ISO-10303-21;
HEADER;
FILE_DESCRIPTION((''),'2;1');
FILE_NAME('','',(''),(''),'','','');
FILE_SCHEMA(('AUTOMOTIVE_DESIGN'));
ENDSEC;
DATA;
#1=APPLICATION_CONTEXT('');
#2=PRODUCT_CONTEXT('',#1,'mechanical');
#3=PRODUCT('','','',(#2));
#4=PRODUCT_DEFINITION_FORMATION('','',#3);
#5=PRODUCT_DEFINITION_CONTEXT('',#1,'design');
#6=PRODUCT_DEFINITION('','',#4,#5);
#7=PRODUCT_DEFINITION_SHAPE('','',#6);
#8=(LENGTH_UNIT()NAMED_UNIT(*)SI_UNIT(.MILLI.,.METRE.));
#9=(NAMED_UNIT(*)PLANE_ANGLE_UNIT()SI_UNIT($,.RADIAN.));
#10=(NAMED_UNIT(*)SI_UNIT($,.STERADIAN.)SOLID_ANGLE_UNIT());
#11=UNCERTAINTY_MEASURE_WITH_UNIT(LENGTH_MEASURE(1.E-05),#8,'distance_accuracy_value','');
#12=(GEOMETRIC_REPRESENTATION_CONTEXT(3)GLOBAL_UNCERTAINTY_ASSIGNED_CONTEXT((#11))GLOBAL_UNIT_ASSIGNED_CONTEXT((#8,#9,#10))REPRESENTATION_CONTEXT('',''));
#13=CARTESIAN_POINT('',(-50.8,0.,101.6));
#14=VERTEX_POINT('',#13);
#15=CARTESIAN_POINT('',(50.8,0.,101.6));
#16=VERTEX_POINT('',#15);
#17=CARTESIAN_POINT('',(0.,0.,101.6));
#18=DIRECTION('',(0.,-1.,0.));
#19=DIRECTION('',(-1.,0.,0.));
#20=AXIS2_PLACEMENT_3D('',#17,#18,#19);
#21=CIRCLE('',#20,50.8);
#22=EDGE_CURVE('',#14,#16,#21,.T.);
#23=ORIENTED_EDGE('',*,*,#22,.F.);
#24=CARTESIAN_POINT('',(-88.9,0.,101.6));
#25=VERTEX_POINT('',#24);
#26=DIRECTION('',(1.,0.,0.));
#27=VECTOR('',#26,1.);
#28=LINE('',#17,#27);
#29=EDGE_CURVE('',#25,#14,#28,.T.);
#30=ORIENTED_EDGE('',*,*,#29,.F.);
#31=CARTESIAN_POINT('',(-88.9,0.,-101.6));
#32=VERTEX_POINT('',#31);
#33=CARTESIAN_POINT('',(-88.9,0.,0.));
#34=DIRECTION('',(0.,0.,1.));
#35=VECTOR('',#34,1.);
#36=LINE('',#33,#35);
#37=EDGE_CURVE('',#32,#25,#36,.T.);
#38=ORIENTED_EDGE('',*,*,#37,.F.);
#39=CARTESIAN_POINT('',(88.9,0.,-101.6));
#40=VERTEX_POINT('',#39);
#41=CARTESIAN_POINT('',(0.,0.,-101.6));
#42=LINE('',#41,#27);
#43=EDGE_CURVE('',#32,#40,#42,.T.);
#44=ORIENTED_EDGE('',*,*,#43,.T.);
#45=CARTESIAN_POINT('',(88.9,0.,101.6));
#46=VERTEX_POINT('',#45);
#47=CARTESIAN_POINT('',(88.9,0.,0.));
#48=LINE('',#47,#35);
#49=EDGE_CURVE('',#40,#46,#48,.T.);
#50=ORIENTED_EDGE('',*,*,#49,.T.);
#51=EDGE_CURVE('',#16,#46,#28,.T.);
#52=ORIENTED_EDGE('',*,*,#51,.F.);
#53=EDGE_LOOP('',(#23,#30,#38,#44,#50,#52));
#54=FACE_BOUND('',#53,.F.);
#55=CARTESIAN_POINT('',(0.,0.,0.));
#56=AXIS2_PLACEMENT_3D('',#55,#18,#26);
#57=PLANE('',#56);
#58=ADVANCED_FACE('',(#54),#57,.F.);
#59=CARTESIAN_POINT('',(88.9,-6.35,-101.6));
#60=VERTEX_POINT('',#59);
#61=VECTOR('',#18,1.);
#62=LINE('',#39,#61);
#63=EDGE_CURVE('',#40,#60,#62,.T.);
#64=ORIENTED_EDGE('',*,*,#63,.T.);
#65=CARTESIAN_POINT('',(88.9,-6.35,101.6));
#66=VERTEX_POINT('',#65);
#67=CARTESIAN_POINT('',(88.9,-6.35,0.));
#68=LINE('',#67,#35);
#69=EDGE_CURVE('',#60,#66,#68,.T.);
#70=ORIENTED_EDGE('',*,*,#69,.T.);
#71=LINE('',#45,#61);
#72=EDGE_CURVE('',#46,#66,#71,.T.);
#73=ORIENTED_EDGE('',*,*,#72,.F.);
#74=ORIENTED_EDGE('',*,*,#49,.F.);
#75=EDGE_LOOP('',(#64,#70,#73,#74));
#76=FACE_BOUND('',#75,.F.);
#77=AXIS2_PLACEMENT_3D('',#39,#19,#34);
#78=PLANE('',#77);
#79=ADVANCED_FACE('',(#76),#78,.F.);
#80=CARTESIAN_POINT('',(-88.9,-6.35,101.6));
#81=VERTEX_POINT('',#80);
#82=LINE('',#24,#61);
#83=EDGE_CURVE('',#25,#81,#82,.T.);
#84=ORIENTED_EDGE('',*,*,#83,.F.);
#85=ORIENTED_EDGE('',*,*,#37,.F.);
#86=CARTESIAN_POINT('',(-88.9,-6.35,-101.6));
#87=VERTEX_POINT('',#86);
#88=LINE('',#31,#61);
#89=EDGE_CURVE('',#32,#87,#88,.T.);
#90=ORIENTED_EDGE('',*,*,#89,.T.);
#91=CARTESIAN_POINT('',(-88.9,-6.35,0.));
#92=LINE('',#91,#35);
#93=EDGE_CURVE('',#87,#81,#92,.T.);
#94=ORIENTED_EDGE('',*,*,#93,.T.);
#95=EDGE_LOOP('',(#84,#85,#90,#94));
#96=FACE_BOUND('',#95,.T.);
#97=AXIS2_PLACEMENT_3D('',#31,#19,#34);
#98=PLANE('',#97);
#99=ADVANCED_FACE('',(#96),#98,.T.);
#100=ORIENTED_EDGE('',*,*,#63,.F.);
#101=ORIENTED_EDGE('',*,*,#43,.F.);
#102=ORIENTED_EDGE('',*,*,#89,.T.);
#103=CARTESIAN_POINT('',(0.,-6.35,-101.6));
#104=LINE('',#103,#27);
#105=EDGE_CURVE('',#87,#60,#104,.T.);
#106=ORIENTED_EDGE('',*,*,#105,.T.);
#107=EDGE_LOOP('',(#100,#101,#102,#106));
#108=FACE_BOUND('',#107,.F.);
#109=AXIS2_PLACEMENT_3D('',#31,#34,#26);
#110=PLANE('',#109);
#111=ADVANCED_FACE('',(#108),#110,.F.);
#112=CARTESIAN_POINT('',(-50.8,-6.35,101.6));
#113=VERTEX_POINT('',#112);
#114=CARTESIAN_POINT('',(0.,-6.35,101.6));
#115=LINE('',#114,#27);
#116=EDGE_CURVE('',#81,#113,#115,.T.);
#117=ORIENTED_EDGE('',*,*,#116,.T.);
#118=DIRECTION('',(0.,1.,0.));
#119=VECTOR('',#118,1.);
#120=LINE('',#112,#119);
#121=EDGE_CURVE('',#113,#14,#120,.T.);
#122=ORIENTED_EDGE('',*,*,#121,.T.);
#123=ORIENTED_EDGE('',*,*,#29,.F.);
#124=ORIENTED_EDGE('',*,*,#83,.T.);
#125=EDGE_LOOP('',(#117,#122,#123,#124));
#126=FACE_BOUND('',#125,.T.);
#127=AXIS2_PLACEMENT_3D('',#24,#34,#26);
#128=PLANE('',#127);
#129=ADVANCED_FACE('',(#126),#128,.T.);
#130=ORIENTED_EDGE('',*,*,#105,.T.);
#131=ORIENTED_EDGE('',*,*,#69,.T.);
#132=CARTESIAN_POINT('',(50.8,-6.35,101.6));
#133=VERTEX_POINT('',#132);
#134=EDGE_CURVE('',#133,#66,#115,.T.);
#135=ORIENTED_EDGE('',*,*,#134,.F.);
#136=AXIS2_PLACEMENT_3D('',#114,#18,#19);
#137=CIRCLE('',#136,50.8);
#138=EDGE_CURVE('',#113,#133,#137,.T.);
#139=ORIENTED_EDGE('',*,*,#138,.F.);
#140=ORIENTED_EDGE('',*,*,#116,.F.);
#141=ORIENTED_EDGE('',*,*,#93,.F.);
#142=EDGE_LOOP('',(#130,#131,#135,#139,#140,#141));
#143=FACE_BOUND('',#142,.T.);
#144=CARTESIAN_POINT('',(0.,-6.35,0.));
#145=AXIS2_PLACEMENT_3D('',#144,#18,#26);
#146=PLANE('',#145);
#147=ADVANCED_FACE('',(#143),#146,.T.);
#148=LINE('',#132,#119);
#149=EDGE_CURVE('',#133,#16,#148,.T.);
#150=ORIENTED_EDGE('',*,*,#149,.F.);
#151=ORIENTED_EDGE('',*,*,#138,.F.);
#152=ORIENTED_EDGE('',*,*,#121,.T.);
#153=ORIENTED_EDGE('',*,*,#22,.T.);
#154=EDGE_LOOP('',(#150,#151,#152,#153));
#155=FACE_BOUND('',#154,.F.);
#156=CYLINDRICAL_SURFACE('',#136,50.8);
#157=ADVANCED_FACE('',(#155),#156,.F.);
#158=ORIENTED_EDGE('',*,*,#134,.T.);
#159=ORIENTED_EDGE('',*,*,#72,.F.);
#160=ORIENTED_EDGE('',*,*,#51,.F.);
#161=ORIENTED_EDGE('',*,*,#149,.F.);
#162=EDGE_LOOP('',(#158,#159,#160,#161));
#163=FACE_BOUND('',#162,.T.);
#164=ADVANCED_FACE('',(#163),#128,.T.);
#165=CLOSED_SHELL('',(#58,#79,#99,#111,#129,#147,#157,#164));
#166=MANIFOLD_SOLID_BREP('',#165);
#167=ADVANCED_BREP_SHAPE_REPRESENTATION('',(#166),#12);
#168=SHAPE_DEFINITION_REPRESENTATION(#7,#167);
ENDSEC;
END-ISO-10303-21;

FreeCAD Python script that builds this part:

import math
import FreeCAD as App
import Part
import Sketcher

V = App.Vector
Q = App.Units.Quantity


def add_polygon(sketch, points):
    """Adds a closed chain of lines whose ends are joined by coincident constraints."""
    first, n = sketch.GeometryCount, len(points)
    for a, b in zip(points, points[1:] + points[:1]):
        sketch.addGeometry(Part.LineSegment(App.Vector(*a, 0), App.Vector(*b, 0)), False)
    for i in range(n):
        sketch.addConstraint(Sketcher.Constraint("Coincident", first + i, 2, first + (i + 1) % n, 1))

doc = App.newDocument("Part")
body = doc.addObject("PartDesign::Body", "Body")

# Sketch on XZ plane
sketch1 = doc.addObject("Sketcher::SketchObject", "Sketch")
body.addObject(sketch1)
sketch1.AttachmentSupport = (doc.XZ_Plane, [""])
sketch1.MapMode = "FlatFace"
add_polygon(sketch1, [(-89, 102), (-89, -102), (89, -102), (89, 102)])  # lines 0-3
sketch1.addConstraint([
    Sketcher.Constraint("Vertical", 0),
    Sketcher.Constraint("Horizontal", 1),
    Sketcher.Constraint("Vertical", 2),
    Sketcher.Constraint("Horizontal", 3),
    Sketcher.Constraint("Symmetric", 0, 2, 2, 2, -1, 1),
    Sketcher.Constraint("DistanceX", 1, 1, 1, 2, Q("7 in")),
    Sketcher.Constraint("DistanceY", 0, 2, 0, 1, Q("8 in")),
])
pad1 = doc.addObject("PartDesign::Pad", "Pad")
body.addObject(pad1)
pad1.Profile = sketch1
pad1.Length = Q("0.25 in")

# Sketch on XZ plane
sketch2 = doc.addObject("Sketcher::SketchObject", "Sketch001")
body.addObject(sketch2)
sketch2.AttachmentSupport = (doc.XZ_Plane, [""])
sketch2.MapMode = "FlatFace"
sketch2.AttachmentOffset = App.Placement(V(0, 0, 0.25 * 25.4), App.Rotation())
sketch2.addGeometry([
    Part.LineSegment(V(51, 102, 0), V(-51, 102, 0)),
    Part.ArcOfCircle(Part.Circle(V(0, 102, 0), V(0, 0, 1), 51), math.radians(180), math.radians(360)),
], False)
sketch2.addConstraint([
    Sketcher.Constraint("Coincident", 0, 1, 1, 2),
    Sketcher.Constraint("Coincident", 1, 1, 0, 2),
    Sketcher.Constraint("Horizontal", 0),
    Sketcher.Constraint("PointOnObject", 1, 3, -2),
    Sketcher.Constraint("Horizontal", 1, 3, 0, 1),
    Sketcher.Constraint("Radius", 1, Q("2 in")),
    Sketcher.Constraint("DistanceY", -1, 1, 1, 3, Q("4 in")),
])
pocket1 = doc.addObject("PartDesign::Pocket", "Pocket")
body.addObject(pocket1)
pocket1.Profile = sketch2
pocket1.Type = "ThroughAll"

doc.recompute()
